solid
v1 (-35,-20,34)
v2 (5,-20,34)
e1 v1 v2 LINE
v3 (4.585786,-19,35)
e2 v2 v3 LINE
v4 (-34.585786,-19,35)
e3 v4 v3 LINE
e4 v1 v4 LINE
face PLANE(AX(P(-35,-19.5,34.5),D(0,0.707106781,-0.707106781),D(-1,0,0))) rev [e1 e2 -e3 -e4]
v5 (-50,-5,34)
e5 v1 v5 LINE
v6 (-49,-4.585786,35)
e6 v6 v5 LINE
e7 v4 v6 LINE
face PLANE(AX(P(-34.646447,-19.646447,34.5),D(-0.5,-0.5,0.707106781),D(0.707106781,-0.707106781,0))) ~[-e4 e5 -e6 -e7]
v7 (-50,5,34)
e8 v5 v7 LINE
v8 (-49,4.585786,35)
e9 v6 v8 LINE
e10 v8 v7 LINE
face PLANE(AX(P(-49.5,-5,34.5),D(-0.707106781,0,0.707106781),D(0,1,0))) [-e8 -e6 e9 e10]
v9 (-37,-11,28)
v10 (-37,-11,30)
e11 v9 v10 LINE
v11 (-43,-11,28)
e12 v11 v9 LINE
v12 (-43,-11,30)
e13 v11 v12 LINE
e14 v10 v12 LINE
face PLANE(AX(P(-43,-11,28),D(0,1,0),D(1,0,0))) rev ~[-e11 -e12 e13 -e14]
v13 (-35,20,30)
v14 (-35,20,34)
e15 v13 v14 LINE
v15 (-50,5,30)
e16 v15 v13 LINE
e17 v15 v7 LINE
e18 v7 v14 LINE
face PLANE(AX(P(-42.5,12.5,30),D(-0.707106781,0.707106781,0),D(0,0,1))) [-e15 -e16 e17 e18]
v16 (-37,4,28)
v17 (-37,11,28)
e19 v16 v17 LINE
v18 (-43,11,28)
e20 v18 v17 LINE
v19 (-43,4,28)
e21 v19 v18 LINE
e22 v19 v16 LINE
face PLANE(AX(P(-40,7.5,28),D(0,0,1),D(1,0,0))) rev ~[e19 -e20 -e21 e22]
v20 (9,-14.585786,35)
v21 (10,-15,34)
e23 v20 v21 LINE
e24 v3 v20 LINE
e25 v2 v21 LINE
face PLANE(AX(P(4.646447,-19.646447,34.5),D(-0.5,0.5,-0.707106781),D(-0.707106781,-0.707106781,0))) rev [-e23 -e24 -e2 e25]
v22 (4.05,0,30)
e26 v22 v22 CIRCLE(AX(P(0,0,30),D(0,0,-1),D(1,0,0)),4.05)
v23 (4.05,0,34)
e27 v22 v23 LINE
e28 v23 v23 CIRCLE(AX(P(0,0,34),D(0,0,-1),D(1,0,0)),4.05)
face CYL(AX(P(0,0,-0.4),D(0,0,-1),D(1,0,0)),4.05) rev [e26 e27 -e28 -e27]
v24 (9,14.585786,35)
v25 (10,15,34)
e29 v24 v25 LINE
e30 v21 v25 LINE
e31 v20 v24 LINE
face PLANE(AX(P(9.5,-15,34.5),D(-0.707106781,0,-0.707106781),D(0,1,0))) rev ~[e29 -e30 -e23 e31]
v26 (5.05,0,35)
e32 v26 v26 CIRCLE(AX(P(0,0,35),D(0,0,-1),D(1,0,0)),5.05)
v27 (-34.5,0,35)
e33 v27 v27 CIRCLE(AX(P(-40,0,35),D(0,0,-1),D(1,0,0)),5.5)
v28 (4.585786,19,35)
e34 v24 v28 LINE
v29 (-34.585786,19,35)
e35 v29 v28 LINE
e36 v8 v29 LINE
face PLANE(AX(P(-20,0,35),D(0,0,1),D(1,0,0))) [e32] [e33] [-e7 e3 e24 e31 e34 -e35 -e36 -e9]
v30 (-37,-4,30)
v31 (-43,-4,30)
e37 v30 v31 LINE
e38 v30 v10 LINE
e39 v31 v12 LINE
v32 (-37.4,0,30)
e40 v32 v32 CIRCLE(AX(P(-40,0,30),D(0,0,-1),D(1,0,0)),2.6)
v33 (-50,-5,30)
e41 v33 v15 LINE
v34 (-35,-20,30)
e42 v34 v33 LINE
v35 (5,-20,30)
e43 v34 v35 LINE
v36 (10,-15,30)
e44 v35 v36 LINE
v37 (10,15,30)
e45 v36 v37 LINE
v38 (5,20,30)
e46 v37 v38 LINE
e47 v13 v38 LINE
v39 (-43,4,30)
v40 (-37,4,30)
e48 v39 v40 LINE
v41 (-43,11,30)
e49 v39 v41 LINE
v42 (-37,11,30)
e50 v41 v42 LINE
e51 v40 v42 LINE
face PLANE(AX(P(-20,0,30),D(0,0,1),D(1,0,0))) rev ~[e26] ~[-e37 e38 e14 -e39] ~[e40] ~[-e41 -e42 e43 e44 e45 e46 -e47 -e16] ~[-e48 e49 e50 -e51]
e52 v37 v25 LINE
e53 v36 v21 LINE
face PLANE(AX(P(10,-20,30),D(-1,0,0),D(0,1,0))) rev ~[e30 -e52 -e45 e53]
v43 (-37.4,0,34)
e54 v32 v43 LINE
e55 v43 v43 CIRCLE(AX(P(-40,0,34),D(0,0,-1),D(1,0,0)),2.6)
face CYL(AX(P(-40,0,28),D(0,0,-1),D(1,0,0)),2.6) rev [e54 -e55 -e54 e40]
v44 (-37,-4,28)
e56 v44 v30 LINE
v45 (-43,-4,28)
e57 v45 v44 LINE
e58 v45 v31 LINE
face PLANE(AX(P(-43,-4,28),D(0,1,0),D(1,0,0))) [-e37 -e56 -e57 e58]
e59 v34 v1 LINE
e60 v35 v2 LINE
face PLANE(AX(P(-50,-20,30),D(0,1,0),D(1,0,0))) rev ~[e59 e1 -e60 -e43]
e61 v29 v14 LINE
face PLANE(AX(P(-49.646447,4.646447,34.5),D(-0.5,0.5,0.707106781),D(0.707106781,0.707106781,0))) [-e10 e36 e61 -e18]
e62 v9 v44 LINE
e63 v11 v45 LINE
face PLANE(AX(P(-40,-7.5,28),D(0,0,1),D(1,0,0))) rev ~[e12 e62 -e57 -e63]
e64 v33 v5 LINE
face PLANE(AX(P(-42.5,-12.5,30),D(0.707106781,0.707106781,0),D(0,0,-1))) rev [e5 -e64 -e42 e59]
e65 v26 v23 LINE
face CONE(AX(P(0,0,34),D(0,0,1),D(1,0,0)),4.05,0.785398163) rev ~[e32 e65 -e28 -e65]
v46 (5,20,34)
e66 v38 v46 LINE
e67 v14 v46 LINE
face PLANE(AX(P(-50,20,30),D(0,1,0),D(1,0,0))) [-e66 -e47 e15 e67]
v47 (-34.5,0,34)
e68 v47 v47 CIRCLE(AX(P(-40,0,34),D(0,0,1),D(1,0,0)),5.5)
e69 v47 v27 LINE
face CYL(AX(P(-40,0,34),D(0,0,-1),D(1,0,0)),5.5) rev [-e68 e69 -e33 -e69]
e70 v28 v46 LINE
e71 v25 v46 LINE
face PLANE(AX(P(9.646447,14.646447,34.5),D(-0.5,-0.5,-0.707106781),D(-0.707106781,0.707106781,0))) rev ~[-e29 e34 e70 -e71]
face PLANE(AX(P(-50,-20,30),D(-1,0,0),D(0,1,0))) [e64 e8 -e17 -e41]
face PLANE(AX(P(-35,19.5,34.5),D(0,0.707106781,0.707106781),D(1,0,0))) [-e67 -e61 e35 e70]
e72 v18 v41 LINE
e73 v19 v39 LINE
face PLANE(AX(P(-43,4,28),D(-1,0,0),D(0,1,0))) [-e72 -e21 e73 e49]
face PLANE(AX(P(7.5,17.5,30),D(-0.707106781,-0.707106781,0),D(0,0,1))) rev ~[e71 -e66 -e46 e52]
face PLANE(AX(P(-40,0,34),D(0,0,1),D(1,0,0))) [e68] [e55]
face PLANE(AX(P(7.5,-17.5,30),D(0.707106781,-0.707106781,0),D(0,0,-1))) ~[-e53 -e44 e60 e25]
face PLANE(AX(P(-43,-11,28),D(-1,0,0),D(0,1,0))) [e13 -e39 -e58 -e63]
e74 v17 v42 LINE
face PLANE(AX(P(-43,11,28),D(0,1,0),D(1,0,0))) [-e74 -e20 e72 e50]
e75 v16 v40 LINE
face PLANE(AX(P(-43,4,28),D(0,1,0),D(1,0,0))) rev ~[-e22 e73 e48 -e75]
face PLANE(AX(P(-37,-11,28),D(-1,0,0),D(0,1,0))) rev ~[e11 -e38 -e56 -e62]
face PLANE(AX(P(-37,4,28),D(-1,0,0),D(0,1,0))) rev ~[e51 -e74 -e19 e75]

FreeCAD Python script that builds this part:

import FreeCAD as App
import Part
import Sketcher

V = App.Vector


def edges_at(feature, points):
    """Names of the edges that pass closest to the given points."""
    edges = feature.Shape.Edges
    near = lambda p: min(range(len(edges)), key=lambda i: edges[i].distToShape(Part.Vertex(*p))[0])
    return sorted({f"Edge{near(p) + 1}" for p in points})


def add_polygon(sketch, points):
    """Adds a closed chain of lines whose ends are joined by coincident constraints."""
    first, n = sketch.GeometryCount, len(points)
    for a, b in zip(points, points[1:] + points[:1]):
        sketch.addGeometry(Part.LineSegment(App.Vector(*a, 0), App.Vector(*b, 0)), False)
    for i in range(n):
        sketch.addConstraint(Sketcher.Constraint("Coincident", first + i, 2, first + (i + 1) % n, 1))

doc = App.newDocument("Part")
body = doc.addObject("PartDesign::Body", "Body")

# Sketch on XY plane
sketch1 = body.newObject("Sketcher::SketchObject", "Sketch")
sketch1.AttachmentSupport = (doc.getObject("XY_Plane"), [""])
sketch1.MapMode = "FlatFace"
sketch1.AttachmentOffset = App.Placement(V(0, 0, 28), App.Rotation())
sketch1.addGeometry(Part.Circle(V(-40, 0, 0), V(0, 0, 1), 2.6), False)
sketch1.addConstraint(Sketcher.Constraint("PointOnObject", 0, 3, -1))
sketch1.addConstraint(Sketcher.Constraint("Diameter", 0, 5.2))
sketch1.addConstraint(Sketcher.Constraint("DistanceX", 0, 3, -1, 1, 40.0))
pad1 = body.newObject("PartDesign::Pad", "Pad")
pad1.Profile = sketch1
pad1.Length = 10
body2 = doc.addObject("PartDesign::Body", "Body001")

# Sketch on XY plane
sketch2 = body2.newObject("Sketcher::SketchObject", "Sketch001")
sketch2.AttachmentSupport = (doc.getObject("XY_Plane001"), [""])
sketch2.MapMode = "FlatFace"
sketch2.AttachmentOffset = App.Placement(V(0, 0, 34), App.Rotation())
sketch2.addGeometry(Part.Circle(V(-40, 0, 0), V(0, 0, 1), 6), False)
sketch2.addConstraint(Sketcher.Constraint("PointOnObject", 0, 3, -1))
sketch2.addConstraint(Sketcher.Constraint("Diameter", 0, 11.0))
sketch2.addConstraint(Sketcher.Constraint("DistanceX", 0, 3, -1, 1, 40.0))
pad2 = body2.newObject("PartDesign::Pad", "Pad001")
pad2.Profile = sketch2
pad2.Length = 2
body3 = doc.addObject("PartDesign::Body", "Body002")

# Sketch on XY plane
sketch3 = body3.newObject("Sketcher::SketchObject", "Sketch002")
sketch3.AttachmentSupport = (doc.getObject("XY_Plane002"), [""])
sketch3.MapMode = "FlatFace"
sketch3.AttachmentOffset = App.Placement(V(0, 0, -0.4), App.Rotation())
sketch3.addGeometry(Part.Circle(V(0, 0, 0), V(0, 0, 1), 4), False)
sketch3.addConstraint(Sketcher.Constraint("Coincident", 0, 3, -1, 1))
sketch3.addConstraint(Sketcher.Constraint("Diameter", 0, 8.1))
pad3 = body3.newObject("PartDesign::Pad", "Pad002")
pad3.Profile = sketch3
pad3.Length = 40
body4 = doc.addObject("PartDesign::Body", "Body003")

# Sketch on XY plane
sketch4 = body4.newObject("Sketcher::SketchObject", "Sketch003")
sketch4.AttachmentSupport = (doc.getObject("XY_Plane003"), [""])
sketch4.MapMode = "FlatFace"
sketch4.AttachmentOffset = App.Placement(V(0, 0, 30), App.Rotation())
add_polygon(sketch4, [(-50, 20), (-50, -20), (10, -20), (10, 20)])  # lines 0-3
sketch4.addConstraint(Sketcher.Constraint("Vertical", 0))
sketch4.addConstraint(Sketcher.Constraint("Horizontal", 1))
sketch4.addConstraint(Sketcher.Constraint("Vertical", 2))
sketch4.addConstraint(Sketcher.Constraint("Horizontal", 3))
sketch4.addConstraint(Sketcher.Constraint("DistanceX", 1, 1, 1, 2, 60.0))
sketch4.addConstraint(Sketcher.Constraint("DistanceY", 0, 2, 0, 1, 40.0))
sketch4.addConstraint(Sketcher.Constraint("DistanceX", 0, 2, -1, 1, 50.0))
sketch4.addConstraint(Sketcher.Constraint("DistanceY", 0, 2, -1, 1, 20.0))
pad4 = body4.newObject("PartDesign::Pad", "Pad003")
pad4.Profile = sketch4
pad4.Length = 5
doc.recompute()

chamfer = body4.newObject("PartDesign::Chamfer", "Chamfer")
chamfer.Base = (pad4, edges_at(pad4, [(10, -20, 32.5), (10, 20, 32.5)]))
chamfer.Size = 5
doc.recompute()

chamfer2 = body4.newObject("PartDesign::Chamfer", "Chamfer001")
chamfer2.Base = (chamfer, edges_at(chamfer, [(-50, 20, 32.5), (-50, -20, 32.5)]))
chamfer2.Size = 15
doc.recompute()

chamfer3 = body4.newObject("PartDesign::Chamfer", "Chamfer002")
chamfer3.Base = (chamfer2, edges_at(chamfer2, [
    (-15, 20, 35),
    (-42.5, 12.5, 35),
    (7.5, 17.5, 35),
    (-50, 0, 35),
    (10, 0, 35),
    (-42.5, -12.5, 35),
    (7.5, -17.5, 35),
    (-15, -20, 35),
]))
chamfer3.Size = 1
doc.recompute()

boolean = body4.newObject("PartDesign::Boolean", "Boolean")
boolean.Type = "Cut"
boolean.addObjects([body3])
doc.recompute()

chamfer4 = body4.newObject("PartDesign::Chamfer", "Chamfer003")
chamfer4.Base = (boolean, edges_at(boolean, [(-4.05, 0, 35)]))
chamfer4.Size = 1
doc.recompute()

boolean2 = body4.newObject("PartDesign::Boolean", "Boolean001")
boolean2.Type = "Cut"
boolean2.addObjects([body2])
doc.recompute()

boolean3 = body4.newObject("PartDesign::Boolean", "Boolean002")
boolean3.Type = "Cut"
boolean3.addObjects([body])
body5 = doc.addObject("PartDesign::Body", "Body004")

# Sketch on XY plane
sketch5 = body5.newObject("Sketcher::SketchObject", "Sketch004")
sketch5.AttachmentSupport = (doc.getObject("XY_Plane004"), [""])
sketch5.MapMode = "FlatFace"
sketch5.AttachmentOffset = App.Placement(V(0, 0, 28), App.Rotation())
add_polygon(sketch5, [(-43, -4), (-43, -11), (-37, -11), (-37, -4)])  # lines 0-3
sketch5.addConstraint(Sketcher.Constraint("Vertical", 0))
sketch5.addConstraint(Sketcher.Constraint("Horizontal", 1))
sketch5.addConstraint(Sketcher.Constraint("Vertical", 2))
sketch5.addConstraint(Sketcher.Constraint("Horizontal", 3))
sketch5.addConstraint(Sketcher.Constraint("DistanceX", 1, 1, 1, 2, 6.0))
sketch5.addConstraint(Sketcher.Constraint("DistanceY", 0, 2, 0, 1, 7.0))
sketch5.addConstraint(Sketcher.Constraint("DistanceX", 0, 2, -1, 1, 43.0))
sketch5.addConstraint(Sketcher.Constraint("DistanceY", 0, 2, -1, 1, 11.0))
pad5 = body5.newObject("PartDesign::Pad", "Pad004")
pad5.Profile = sketch5
pad5.Length = 3
body6 = doc.addObject("PartDesign::Body", "Body005")

# Sketch on XY plane
sketch6 = body6.newObject("Sketcher::SketchObject", "Sketch005")
sketch6.AttachmentSupport = (doc.getObject("XY_Plane005"), [""])
sketch6.MapMode = "FlatFace"
sketch6.AttachmentOffset = App.Placement(V(0, 0, 28), App.Rotation())
add_polygon(sketch6, [(-43, 11), (-43, 4), (-37, 4), (-37, 11)])  # lines 0-3
sketch6.addConstraint(Sketcher.Constraint("Vertical", 0))
sketch6.addConstraint(Sketcher.Constraint("Horizontal", 1))
sketch6.addConstraint(Sketcher.Constraint("Vertical", 2))
sketch6.addConstraint(Sketcher.Constraint("Horizontal", 3))
sketch6.addConstraint(Sketcher.Constraint("DistanceX", 1, 1, 1, 2, 6.0))
sketch6.addConstraint(Sketcher.Constraint("DistanceY", 0, 2, 0, 1, 7.0))
sketch6.addConstraint(Sketcher.Constraint("DistanceX", 0, 2, -1, 1, 43.0))
sketch6.addConstraint(Sketcher.Constraint("DistanceY", -1, 1, 0, 2, 4.0))
pad6 = body6.newObject("PartDesign::Pad", "Pad005")
pad6.Profile = sketch6
pad6.Length = 3
doc.recompute()

boolean4 = body6.newObject("PartDesign::Boolean", "Boolean003")
boolean4.Type = "Fuse"
boolean4.addObjects([body4])
doc.recompute()

boolean5 = body6.newObject("PartDesign::Boolean", "Boolean004")
boolean5.Type = "Fuse"
boolean5.addObjects([body5])

doc.recompute()
